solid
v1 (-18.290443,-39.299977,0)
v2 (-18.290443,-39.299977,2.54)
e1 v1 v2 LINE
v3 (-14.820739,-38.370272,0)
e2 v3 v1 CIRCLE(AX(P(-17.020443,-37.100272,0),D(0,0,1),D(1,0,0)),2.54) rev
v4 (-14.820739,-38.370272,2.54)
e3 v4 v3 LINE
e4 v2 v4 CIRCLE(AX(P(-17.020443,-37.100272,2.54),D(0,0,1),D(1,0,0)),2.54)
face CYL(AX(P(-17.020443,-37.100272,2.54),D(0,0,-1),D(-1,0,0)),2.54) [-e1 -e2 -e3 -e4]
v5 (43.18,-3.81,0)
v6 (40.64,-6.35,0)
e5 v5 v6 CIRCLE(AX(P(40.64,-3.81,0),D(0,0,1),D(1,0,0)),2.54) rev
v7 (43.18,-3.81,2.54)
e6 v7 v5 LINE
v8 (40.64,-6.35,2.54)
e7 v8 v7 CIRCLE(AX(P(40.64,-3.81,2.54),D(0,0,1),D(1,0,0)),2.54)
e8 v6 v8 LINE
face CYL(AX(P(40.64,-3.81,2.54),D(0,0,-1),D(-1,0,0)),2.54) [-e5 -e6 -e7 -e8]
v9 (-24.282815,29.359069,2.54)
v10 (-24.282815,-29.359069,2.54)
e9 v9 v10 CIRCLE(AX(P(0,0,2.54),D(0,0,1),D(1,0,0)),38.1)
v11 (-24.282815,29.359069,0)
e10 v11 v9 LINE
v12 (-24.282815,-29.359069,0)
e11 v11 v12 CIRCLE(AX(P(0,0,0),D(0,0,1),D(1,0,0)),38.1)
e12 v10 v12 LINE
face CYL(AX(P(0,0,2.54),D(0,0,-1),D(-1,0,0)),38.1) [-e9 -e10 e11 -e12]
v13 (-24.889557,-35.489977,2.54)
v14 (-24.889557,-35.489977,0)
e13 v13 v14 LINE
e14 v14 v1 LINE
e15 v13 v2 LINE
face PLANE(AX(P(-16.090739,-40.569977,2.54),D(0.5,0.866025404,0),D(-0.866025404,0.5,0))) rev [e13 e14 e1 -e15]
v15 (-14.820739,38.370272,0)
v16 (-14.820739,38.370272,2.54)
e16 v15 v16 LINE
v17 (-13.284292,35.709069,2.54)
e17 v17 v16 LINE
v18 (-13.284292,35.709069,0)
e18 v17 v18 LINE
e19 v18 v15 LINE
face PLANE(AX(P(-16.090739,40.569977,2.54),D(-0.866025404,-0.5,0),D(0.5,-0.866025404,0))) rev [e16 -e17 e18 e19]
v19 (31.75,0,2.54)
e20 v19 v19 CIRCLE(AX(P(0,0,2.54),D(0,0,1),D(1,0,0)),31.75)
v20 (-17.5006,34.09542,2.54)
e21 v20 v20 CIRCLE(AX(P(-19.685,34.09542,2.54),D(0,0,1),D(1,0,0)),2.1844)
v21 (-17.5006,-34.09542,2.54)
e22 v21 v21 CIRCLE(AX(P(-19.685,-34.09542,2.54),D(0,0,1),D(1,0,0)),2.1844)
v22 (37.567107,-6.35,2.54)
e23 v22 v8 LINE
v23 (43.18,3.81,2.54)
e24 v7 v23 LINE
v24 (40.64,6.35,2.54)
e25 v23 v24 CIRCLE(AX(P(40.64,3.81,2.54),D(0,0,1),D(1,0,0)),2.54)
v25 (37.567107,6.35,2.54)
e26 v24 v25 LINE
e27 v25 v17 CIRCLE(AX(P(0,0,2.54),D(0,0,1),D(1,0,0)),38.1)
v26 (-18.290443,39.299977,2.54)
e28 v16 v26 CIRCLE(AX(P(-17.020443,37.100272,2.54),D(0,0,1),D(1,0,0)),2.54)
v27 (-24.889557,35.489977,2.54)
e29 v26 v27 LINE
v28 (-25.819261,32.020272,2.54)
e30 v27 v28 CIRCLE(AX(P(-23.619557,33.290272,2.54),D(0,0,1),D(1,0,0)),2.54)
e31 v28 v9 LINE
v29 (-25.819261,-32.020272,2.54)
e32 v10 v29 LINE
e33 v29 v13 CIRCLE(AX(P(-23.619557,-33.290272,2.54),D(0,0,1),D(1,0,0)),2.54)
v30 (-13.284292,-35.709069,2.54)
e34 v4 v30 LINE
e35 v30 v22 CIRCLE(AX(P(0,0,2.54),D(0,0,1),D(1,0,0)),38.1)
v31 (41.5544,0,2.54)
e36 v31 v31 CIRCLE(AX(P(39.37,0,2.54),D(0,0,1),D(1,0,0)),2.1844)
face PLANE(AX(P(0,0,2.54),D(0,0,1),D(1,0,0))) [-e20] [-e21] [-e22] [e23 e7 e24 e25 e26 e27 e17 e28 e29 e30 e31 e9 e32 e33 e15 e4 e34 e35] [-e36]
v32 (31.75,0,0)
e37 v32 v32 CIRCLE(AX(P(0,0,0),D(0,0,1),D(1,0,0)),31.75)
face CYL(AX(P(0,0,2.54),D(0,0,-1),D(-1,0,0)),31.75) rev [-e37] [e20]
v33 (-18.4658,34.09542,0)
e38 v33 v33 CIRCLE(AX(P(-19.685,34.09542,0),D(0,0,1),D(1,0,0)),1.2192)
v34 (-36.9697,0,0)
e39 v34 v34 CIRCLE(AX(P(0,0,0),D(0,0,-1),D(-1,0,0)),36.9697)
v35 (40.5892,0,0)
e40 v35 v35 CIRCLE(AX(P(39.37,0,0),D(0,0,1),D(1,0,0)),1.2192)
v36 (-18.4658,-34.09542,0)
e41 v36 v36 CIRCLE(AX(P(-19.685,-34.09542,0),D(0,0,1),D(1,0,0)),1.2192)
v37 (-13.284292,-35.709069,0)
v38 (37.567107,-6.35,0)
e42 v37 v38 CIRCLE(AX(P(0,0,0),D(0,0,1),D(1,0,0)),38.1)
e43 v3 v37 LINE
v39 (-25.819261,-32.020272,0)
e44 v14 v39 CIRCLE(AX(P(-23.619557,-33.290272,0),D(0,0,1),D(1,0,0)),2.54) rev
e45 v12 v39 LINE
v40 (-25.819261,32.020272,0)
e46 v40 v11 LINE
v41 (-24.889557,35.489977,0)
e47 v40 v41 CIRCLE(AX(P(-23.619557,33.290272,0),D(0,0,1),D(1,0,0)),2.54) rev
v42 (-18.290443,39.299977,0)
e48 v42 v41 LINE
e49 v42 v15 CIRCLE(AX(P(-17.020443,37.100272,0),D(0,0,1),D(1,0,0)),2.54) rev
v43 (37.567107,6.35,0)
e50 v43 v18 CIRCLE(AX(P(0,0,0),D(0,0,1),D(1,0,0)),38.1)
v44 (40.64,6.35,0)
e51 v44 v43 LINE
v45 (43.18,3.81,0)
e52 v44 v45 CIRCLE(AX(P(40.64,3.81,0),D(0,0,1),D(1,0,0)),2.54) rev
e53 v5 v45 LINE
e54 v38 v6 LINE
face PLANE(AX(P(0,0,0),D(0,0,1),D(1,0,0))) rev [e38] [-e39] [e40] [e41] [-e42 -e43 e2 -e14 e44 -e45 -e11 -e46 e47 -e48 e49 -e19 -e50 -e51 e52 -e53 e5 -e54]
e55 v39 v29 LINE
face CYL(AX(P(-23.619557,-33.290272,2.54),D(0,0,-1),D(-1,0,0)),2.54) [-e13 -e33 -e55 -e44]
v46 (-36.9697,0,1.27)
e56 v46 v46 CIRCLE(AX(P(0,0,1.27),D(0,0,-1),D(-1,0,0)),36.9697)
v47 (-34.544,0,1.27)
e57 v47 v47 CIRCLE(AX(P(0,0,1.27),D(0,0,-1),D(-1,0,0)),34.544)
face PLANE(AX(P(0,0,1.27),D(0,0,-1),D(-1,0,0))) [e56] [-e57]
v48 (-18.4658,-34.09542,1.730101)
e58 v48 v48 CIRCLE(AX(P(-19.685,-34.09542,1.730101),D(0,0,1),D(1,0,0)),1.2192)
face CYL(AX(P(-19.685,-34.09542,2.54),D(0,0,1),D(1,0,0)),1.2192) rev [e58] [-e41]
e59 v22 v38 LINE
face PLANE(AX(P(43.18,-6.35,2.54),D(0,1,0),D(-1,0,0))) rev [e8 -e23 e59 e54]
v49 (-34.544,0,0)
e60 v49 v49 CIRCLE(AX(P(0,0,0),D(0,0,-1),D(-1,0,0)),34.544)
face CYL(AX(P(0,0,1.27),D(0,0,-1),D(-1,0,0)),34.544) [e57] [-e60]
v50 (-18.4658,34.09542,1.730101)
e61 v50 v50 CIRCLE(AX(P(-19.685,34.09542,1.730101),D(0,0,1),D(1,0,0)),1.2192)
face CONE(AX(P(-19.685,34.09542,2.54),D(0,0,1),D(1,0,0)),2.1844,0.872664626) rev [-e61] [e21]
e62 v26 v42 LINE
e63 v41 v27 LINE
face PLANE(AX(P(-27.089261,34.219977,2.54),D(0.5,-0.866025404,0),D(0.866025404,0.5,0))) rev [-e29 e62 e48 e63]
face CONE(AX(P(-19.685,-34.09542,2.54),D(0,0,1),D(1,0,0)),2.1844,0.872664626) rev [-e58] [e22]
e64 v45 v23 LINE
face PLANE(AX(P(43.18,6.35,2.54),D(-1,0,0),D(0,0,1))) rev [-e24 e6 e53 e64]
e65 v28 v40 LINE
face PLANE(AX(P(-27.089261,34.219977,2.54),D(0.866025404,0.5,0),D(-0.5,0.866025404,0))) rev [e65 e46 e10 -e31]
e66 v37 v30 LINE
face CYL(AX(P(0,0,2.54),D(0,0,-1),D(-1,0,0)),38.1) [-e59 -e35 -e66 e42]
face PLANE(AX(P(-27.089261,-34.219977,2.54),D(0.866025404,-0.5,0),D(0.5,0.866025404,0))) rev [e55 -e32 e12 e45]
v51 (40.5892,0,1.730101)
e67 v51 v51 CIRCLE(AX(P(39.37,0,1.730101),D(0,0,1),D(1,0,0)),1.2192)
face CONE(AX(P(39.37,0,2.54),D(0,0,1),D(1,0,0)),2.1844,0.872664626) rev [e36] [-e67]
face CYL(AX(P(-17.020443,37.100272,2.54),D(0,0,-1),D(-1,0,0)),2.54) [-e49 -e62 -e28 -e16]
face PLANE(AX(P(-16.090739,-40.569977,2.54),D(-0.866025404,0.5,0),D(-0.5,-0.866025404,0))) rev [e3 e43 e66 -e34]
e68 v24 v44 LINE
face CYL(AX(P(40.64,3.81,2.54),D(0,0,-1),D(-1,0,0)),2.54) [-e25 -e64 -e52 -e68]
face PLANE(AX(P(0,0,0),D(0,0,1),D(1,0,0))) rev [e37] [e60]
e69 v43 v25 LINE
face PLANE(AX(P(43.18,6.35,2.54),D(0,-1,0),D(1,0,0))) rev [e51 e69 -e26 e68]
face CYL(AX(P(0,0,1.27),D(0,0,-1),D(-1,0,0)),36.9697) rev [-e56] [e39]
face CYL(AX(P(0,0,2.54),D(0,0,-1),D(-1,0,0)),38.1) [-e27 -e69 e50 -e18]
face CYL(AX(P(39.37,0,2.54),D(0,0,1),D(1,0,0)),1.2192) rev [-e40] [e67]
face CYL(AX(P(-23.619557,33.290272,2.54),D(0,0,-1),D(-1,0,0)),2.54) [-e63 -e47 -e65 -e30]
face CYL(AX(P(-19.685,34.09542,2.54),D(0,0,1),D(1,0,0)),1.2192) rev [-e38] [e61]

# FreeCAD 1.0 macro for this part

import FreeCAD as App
import Part
import Sketcher

V = App.Vector
Q = App.Units.Quantity


def edges_at(feature, points):
    """Names of the edges that pass closest to the given points."""
    edges = feature.Shape.Edges
    near = lambda p: min(range(len(edges)), key=lambda i: edges[i].distToShape(Part.Vertex(*p))[0])
    return sorted({f"Edge{near(p) + 1}" for p in points})

doc = App.newDocument("Part")
body = doc.addObject("PartDesign::Body", "Body")

sketch1 = body.newObject("Sketcher::SketchObject", "Sketch")
sketch1.AttachmentSupport = (doc.getObject("XY_Plane"), [""])
sketch1.MapMode = "FlatFace"
sketch1.addGeometry([
    Part.Circle(V(0, 0, 0), V(0, 0, 1), 38.1),
    Part.Circle(V(0, 0, 0), V(0, 0, 1), 31.75),
], False)
sketch1.addConstraint([
    Sketcher.Constraint("Coincident", 0, 3, -1, 1),
    Sketcher.Constraint("Coincident", 1, 3, -1, 1),
    Sketcher.Constraint("Diameter", 0, Q("3 in")),
    Sketcher.Constraint("Diameter", 1, Q("2.5 in")),
])
pad1 = body.newObject("PartDesign::Pad", "Pad")
pad1.Profile = sketch1
pad1.Length = Q("0.1 in")

sketch2 = body.newObject("Sketcher::SketchObject", "Sketch001")
sketch2.AttachmentSupport = (doc.getObject("XY_Plane"), [""])
sketch2.MapMode = "FlatFace"
sketch2.addGeometry([
    Part.LineSegment(V(33.02, 6.35, 0), V(33.02, -6.35, 0)),
    Part.LineSegment(V(33.02, -6.35, 0), V(43.18, -6.35, 0)),
    Part.LineSegment(V(43.18, -6.35, 0), V(43.18, 6.35, 0)),
    Part.LineSegment(V(43.18, 6.35, 0), V(33.02, 6.35, 0)),
], False)
sketch2.addConstraint([
    Sketcher.Constraint("Coincident", 0, 2, 1, 1),
    Sketcher.Constraint("Coincident", 1, 2, 2, 1),
    Sketcher.Constraint("Coincident", 2, 2, 3, 1),
    Sketcher.Constraint("Coincident", 3, 2, 0, 1),
    Sketcher.Constraint("Vertical", 0),
    Sketcher.Constraint("Horizontal", 1),
    Sketcher.Constraint("Vertical", 2),
    Sketcher.Constraint("Horizontal", 3),
    Sketcher.Constraint("DistanceX", 1, 1, 1, 2, Q("0.4 in")),
    Sketcher.Constraint("DistanceY", 0, 2, 0, 1, Q("0.5 in")),
    Sketcher.Constraint("DistanceX", -1, 1, 0, 2, Q("1.3 in")),
    Sketcher.Constraint("DistanceY", 0, 2, -1, 1, Q("0.25 in")),
])
pad2 = body.newObject("PartDesign::Pad", "Pad001")
pad2.Profile = sketch2
pad2.Length = Q("0.1 in")
doc.recompute()

fillet = body.newObject("PartDesign::Fillet", "Fillet")
fillet.Base = (pad2, edges_at(pad2, [(43.18, 6.35, 1.27), (43.18, -6.35, 1.27)]))
fillet.Radius = Q("0.1 in")

sketch3 = body.newObject("Sketcher::SketchObject", "Sketch002")
sketch3.AttachmentSupport = (doc.getObject("XY_Plane"), [""])
sketch3.MapMode = "FlatFace"
sketch3.AttachmentOffset = App.Placement(V(0, 0, 0.1 * 25.4), App.Rotation())
sketch3.addGeometry(Part.Circle(V(39.37, 0, 0), V(0, 0, 1), 0.635), False)
sketch3.addConstraint([
    Sketcher.Constraint("PointOnObject", 0, 3, -1),
    Sketcher.Constraint("Diameter", 0, Q("0.05 in")),
    Sketcher.Constraint("DistanceX", -1, 1, 0, 3, Q("1.55 in")),
])
pocket1 = body.newObject("PartDesign::Pocket", "Pocket")
pocket1.Profile = sketch3
pocket1.Type = "ThroughAll"

sketch4 = body.newObject("Sketcher::SketchObject", "Sketch003")
sketch4.AttachmentSupport = (doc.getObject("XY_Plane"), [""])
sketch4.MapMode = "FlatFace"
sketch4.AttachmentOffset = App.Placement(V(0, 0, 0.1 * 25.4), App.Rotation())
sketch4.addGeometry(Part.Circle(V(39.37, 0, 0), V(0, 0, 1), 1.2192), False)
sketch4.addConstraint([
    Sketcher.Constraint("PointOnObject", 0, 3, -1),
    Sketcher.Constraint("Diameter", 0, Q("0.096 in")),
    Sketcher.Constraint("DistanceX", -1, 1, 0, 3, Q("1.55 in")),
])
doc.recompute()
hole = body.newObject("PartDesign::Hole", "Hole")
hole.Profile = sketch4
hole.ThreadType = "None"
hole.Diameter = Q("0.096 in")
hole.DepthType = "ThroughAll"
hole.HoleCutType = "Countersink"
hole.HoleCutDiameter = Q("0.172 in")
hole.HoleCutCountersinkAngle = 100
doc.recompute()

polarpattern = body.newObject("PartDesign::PolarPattern", "PolarPattern")
polarpattern.Originals = [pad2, pocket1, hole]
polarpattern.Axis = (doc.getObject("Z_Axis"), [""])
polarpattern.Angle = 360
polarpattern.Occurrences = 3
body.Tip = polarpattern
doc.recompute()

fillet2 = body.newObject("PartDesign::Fillet", "Fillet001")
fillet2.Base = (polarpattern, edges_at(polarpattern, [
    (-27.089, 34.22, 1.27),
    (-16.091, 40.57, 1.27),
    (-16.091, -40.57, 1.27),
    (-27.089, -34.22, 1.27),
]))
fillet2.Radius = Q("0.1 in")

sketch5 = body.newObject("Sketcher::SketchObject", "Sketch004")
sketch5.AttachmentSupport = (doc.getObject("XY_Plane"), [""])
sketch5.MapMode = "FlatFace"
sketch5.addGeometry([
    Part.Circle(V(0, 0, 0), V(0, 0, 1), 36.9697),
    Part.Circle(V(0, 0, 0), V(0, 0, 1), 34.544),
], False)
sketch5.addConstraint([
    Sketcher.Constraint("Coincident", 0, 3, -1, 1),
    Sketcher.Constraint("Coincident", 1, 3, -1, 1),
    Sketcher.Constraint("Diameter", 1, Q("2.72 in")),
    Sketcher.Constraint("Diameter", 0, Q("2.911 in")),
])
pocket2 = body.newObject("PartDesign::Pocket", "Pocket001")
pocket2.Profile = sketch5
pocket2.Length = Q("0.05 in")
pocket2.Reversed = True

doc.recompute()
